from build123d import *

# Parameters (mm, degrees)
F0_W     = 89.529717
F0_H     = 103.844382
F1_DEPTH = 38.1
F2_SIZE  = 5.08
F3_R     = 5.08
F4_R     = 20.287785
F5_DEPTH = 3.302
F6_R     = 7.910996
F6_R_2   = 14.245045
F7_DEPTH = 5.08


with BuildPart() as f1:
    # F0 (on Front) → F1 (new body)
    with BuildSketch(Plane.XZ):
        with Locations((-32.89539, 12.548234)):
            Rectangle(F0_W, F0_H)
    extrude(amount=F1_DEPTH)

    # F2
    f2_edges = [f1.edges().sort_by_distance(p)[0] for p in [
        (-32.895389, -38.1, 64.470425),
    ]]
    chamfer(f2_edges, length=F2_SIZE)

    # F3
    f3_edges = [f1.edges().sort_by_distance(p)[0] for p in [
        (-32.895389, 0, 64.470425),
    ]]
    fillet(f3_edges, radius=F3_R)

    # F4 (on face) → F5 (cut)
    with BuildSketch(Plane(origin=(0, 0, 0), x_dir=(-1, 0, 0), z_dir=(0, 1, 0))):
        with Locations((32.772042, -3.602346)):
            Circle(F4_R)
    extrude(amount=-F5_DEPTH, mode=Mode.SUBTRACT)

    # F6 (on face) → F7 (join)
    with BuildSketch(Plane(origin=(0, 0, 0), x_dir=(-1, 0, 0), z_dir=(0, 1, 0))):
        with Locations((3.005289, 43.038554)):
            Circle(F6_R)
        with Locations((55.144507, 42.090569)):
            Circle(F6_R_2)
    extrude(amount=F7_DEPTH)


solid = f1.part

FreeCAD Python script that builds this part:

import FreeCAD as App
import Part
import Sketcher

V = App.Vector
Q = App.Units.Quantity


def edges_at(feature, points):
    """Names of the edges that pass closest to the given points."""
    edges = feature.Shape.Edges
    near = lambda p: min(range(len(edges)), key=lambda i: edges[i].distToShape(Part.Vertex(*p))[0])
    return sorted({f"Edge{near(p) + 1}" for p in points})

doc = App.newDocument("Part")
params = doc.addObject("Spreadsheet::Sheet", "Params")
for row, (alias, value) in enumerate([
    ("pad1_length", "1.5 in"),
    ("chamfer_size", "0.2 in"),
    ("fillet_radius", "0.2 in"),
    ("pocket1_length", "0.13 in"),
    ("pad2_length", "0.2 in"),
], start=1):
    params.set(f"A{row}", alias)
    params.set(f"B{row}", "=" + value)
    params.setAlias(f"B{row}", alias)

body = doc.addObject("PartDesign::Body", "Body")

sketch1 = body.newObject("Sketcher::SketchObject", "Sketch")
sketch1.AttachmentSupport = (doc.getObject("XZ_Plane"), [""])
sketch1.MapMode = "FlatFace"
sketch1.addGeometry([
    Part.LineSegment(V(-78, 64, 0), V(-78, -39, 0)),
    Part.LineSegment(V(-78, -39, 0), V(12, -39, 0)),
    Part.LineSegment(V(12, -39, 0), V(12, 64, 0)),
    Part.LineSegment(V(12, 64, 0), V(-78, 64, 0)),
], False)
sketch1.addConstraint([
    Sketcher.Constraint("Coincident", 0, 2, 1, 1),
    Sketcher.Constraint("Coincident", 1, 2, 2, 1),
    Sketcher.Constraint("Coincident", 2, 2, 3, 1),
    Sketcher.Constraint("Coincident", 3, 2, 0, 1),
    Sketcher.Constraint("Vertical", 0),
    Sketcher.Constraint("Horizontal", 1),
    Sketcher.Constraint("Vertical", 2),
    Sketcher.Constraint("Horizontal", 3),
    Sketcher.Constraint("DistanceY", 0, 2, 0, 1, Q("103.844382 mm")),
    Sketcher.Constraint("DistanceX", 1, 1, 1, 2, Q("89.529717 mm")),
    Sketcher.Constraint("DistanceX", 0, 2, -1, 1, Q("77.660248 mm")),
    Sketcher.Constraint("DistanceY", 0, 2, -1, 1, Q("39.373957 mm")),
])
pad1 = body.newObject("PartDesign::Pad", "Pad")
pad1.Profile = sketch1
pad1.setExpression("Length", "Params.pad1_length")
doc.recompute()

chamfer = body.newObject("PartDesign::Chamfer", "Chamfer")
chamfer.Base = (pad1, edges_at(pad1, [(-32.895, -38.1, 64.47)]))
chamfer.setExpression("Size", "Params.chamfer_size")
doc.recompute()

fillet = body.newObject("PartDesign::Fillet", "Fillet")
fillet.Base = (chamfer, edges_at(chamfer, [(-32.895, 0, 64.47)]))
fillet.setExpression("Radius", "Params.fillet_radius")

sketch2 = body.newObject("Sketcher::SketchObject", "Sketch001")
sketch2.AttachmentSupport = (doc.getObject("XZ_Plane"), [""])
sketch2.MapMode = "FlatFace"
sketch2.addGeometry(Part.Circle(V(-33, -4, 0), V(0, 0, 1), 20), False)
sketch2.addConstraint([
    Sketcher.Constraint("Diameter", 0, Q("40.57557 mm")),
    Sketcher.Constraint("DistanceX", 0, 3, -1, 1, Q("32.772042 mm")),
    Sketcher.Constraint("DistanceY", 0, 3, -1, 1, Q("3.602346 mm")),
])
pocket1 = body.newObject("PartDesign::Pocket", "Pocket")
pocket1.Profile = sketch2
pocket1.setExpression("Length", "Params.pocket1_length")
pocket1.Reversed = True

sketch3 = body.newObject("Sketcher::SketchObject", "Sketch002")
sketch3.AttachmentSupport = (doc.getObject("XZ_Plane"), [""])
sketch3.MapMode = "FlatFace"
sketch3.addGeometry([
    Part.Circle(V(-3, 43, 0), V(0, 0, 1), 8),
    Part.Circle(V(-55, 42, 0), V(0, 0, 1), 14),
], False)
sketch3.addConstraint([
    Sketcher.Constraint("Diameter", 1, Q("28.49009 mm")),
    Sketcher.Constraint("Diameter", 0, Q("15.821992 mm")),
    Sketcher.Constraint("DistanceX", 0, 3, -1, 1, Q("3.005289 mm")),
    Sketcher.Constraint("DistanceY", -1, 1, 1, 3, Q("42.090569 mm")),
    Sketcher.Constraint("DistanceY", -1, 1, 0, 3, Q("43.038554 mm")),
    Sketcher.Constraint("DistanceX", 1, 3, -1, 1, Q("55.144507 mm")),
])
pad2 = body.newObject("PartDesign::Pad", "Pad001")
pad2.Profile = sketch3
pad2.setExpression("Length", "Params.pad2_length")
pad2.Reversed = True

doc.recompute()
